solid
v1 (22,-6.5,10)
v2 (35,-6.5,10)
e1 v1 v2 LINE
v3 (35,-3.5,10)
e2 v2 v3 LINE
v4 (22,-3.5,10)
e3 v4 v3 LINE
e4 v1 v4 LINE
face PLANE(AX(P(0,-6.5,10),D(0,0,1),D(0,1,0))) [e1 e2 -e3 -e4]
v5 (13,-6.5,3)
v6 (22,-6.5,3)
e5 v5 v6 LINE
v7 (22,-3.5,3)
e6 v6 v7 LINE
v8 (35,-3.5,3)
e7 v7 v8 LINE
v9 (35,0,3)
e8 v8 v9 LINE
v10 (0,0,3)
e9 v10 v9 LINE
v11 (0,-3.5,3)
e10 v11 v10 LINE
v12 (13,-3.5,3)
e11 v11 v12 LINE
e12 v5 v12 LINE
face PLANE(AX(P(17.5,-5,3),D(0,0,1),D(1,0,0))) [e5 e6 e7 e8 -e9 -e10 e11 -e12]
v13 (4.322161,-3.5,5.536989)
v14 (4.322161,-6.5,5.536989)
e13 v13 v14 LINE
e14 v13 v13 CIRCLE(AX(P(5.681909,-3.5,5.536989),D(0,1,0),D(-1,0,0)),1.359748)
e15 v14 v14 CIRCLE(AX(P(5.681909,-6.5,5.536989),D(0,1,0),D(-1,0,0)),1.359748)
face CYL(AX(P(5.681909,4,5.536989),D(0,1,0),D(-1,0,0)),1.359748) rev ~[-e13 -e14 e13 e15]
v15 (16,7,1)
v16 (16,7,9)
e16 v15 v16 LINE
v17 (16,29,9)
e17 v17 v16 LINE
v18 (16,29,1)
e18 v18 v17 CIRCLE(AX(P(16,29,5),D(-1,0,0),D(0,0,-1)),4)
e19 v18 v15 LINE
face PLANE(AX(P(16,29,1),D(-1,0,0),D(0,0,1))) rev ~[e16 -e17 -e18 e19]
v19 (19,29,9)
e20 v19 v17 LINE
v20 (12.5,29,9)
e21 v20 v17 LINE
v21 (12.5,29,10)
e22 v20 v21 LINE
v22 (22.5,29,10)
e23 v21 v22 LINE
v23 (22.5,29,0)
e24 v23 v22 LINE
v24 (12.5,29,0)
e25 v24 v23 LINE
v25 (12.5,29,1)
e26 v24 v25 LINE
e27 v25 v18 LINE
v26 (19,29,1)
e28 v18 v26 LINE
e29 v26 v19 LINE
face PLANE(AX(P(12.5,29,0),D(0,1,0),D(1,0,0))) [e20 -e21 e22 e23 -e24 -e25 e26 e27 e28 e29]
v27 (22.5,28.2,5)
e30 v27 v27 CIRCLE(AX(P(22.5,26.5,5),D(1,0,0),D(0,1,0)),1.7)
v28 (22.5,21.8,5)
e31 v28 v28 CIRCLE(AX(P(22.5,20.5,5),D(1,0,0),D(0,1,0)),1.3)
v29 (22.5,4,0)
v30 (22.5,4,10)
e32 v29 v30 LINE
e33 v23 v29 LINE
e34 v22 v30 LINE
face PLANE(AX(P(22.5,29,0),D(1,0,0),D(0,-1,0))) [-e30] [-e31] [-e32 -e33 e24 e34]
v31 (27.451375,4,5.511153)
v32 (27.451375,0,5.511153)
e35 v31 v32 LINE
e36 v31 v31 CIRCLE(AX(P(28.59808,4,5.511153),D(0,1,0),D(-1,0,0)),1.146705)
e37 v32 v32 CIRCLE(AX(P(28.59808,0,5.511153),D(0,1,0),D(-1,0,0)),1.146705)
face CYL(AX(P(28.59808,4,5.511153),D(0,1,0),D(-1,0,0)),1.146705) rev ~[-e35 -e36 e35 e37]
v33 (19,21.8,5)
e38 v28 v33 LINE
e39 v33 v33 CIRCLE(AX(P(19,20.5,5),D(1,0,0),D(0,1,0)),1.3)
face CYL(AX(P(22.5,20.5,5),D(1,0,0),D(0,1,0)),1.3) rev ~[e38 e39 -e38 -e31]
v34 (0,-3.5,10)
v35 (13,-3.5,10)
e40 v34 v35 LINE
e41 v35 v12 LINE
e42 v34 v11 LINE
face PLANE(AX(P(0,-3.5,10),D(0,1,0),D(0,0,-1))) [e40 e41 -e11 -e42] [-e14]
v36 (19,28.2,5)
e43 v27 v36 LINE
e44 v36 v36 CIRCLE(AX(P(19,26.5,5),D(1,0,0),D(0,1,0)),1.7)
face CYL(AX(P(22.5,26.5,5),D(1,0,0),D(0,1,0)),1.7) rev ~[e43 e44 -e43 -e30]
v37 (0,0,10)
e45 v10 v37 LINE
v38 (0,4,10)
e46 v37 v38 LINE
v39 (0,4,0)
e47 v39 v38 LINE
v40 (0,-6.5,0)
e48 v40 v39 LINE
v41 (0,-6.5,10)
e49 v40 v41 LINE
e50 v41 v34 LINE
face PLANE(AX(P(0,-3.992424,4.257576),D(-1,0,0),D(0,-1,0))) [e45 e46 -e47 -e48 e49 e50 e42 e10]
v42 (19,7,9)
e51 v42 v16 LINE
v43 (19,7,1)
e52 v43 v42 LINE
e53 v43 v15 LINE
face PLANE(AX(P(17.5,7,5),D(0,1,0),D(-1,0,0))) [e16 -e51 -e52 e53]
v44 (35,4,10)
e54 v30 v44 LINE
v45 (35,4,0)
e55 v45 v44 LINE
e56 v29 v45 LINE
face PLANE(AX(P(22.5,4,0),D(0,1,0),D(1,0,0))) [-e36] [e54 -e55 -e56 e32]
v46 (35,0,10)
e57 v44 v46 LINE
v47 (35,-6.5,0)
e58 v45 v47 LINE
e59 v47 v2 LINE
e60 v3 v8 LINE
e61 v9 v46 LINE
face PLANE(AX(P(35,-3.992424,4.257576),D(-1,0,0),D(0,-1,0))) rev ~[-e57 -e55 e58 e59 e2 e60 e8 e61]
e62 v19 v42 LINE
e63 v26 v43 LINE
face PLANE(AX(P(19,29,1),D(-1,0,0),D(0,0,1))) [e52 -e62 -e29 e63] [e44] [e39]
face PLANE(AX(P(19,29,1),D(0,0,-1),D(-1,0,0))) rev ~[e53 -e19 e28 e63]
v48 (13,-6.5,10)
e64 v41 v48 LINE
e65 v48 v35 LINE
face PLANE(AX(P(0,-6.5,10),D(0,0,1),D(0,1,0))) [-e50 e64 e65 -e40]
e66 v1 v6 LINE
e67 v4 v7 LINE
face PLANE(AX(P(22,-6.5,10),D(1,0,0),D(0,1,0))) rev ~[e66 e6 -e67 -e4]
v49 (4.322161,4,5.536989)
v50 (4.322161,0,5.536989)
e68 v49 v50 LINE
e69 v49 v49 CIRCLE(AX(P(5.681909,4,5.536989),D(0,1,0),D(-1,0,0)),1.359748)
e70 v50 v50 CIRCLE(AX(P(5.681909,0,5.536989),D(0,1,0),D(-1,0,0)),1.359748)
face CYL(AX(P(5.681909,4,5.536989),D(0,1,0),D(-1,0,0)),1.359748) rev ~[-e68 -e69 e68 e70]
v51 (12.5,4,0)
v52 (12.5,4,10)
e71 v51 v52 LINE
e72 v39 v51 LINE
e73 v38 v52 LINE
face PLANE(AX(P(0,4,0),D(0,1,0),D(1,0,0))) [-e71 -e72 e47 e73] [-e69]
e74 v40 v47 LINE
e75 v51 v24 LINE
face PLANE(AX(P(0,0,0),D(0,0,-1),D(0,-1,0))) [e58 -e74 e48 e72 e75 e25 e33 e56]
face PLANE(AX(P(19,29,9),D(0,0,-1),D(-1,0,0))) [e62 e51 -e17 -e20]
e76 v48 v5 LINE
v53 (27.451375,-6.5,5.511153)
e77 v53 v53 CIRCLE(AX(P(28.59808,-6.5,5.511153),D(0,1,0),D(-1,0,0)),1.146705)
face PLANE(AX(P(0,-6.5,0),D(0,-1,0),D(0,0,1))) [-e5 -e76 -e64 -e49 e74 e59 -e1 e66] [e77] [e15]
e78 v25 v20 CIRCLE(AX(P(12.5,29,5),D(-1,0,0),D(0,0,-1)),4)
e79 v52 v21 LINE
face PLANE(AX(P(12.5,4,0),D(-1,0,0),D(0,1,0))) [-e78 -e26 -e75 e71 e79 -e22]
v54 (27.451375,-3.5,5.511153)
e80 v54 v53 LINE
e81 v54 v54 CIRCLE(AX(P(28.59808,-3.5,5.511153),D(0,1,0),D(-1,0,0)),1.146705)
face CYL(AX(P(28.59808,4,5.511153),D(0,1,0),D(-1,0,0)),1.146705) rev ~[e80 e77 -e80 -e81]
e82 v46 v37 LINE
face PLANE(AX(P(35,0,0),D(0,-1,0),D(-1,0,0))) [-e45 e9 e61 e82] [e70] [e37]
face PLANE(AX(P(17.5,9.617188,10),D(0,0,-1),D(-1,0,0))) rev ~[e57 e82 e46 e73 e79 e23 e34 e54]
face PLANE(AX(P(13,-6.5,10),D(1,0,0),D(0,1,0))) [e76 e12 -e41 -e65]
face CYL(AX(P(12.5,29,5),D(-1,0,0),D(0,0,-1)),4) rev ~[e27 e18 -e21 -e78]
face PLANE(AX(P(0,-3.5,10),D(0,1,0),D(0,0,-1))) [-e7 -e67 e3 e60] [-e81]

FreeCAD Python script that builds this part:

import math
import FreeCAD as App
import Part
import Sketcher
from FreeCAD import Vector
Q = App.Units.Quantity


def add_polygon(sketch, points):
    """Adds a closed chain of lines whose ends are joined by coincident constraints."""
    first, n = sketch.GeometryCount, len(points)
    for a, b in zip(points, points[1:] + points[:1]):
        sketch.addGeometry(Part.LineSegment(App.Vector(*a, 0), App.Vector(*b, 0)), False)
    for i in range(n):
        sketch.addConstraint(Sketcher.Constraint("Coincident", first + i, 2, first + (i + 1) % n, 1))

doc = App.newDocument("Part")
body = doc.addObject("PartDesign::Body", "Body")

# Sketch on XY plane
sketch1 = body.newObject("Sketcher::SketchObject", "Sketch")
sketch1.AttachmentSupport = (doc.getObject("XY_Plane"), [""])
sketch1.MapMode = "FlatFace"
add_polygon(sketch1, [(22.5, 29), (12.5, 29), (12.5, 4), (0, 4), (0, 0), (35, 0), (35, 4), (22.5, 4)])  # lines 0-7
sketch1.addConstraint([
    Sketcher.Constraint("Horizontal", 0),
    Sketcher.Constraint("Vertical", 1),
    Sketcher.Constraint("Horizontal", 2),
    Sketcher.Constraint("Vertical", 3),
    Sketcher.Constraint("Horizontal", 4),
    Sketcher.Constraint("Vertical", 5),
    Sketcher.Constraint("Horizontal", 6),
    Sketcher.Constraint("Vertical", 7),
    Sketcher.Constraint("Coincident", 3, 2, -1, 1),
    Sketcher.Constraint("Horizontal", 2, 2, 5, 2),
    Sketcher.Constraint("Equal", 2, 6),
    Sketcher.Constraint("DistanceX", 0, 2, 0, 1, Q("10 mm")),
    Sketcher.Constraint("DistanceX", 4, 1, 4, 2, Q("35 mm")),
    Sketcher.Constraint("DistanceY", 1, 2, 1, 1, Q("25 mm")),
    Sketcher.Constraint("DistanceY", 3, 2, 3, 1, Q("4 mm")),
])
pad1 = body.newObject("PartDesign::Pad", "Pad")
pad1.Profile = sketch1
pad1.Length = 10

# Sketch on XZ plane
sketch2 = body.newObject("Sketcher::SketchObject", "Sketch001")
sketch2.AttachmentSupport = (doc.getObject("XZ_Plane"), [""])
sketch2.MapMode = "FlatFace"
sketch2.AttachmentOffset = App.Placement(Vector(0, 0, -29), App.Rotation())
add_polygon(sketch2, [(19, 9), (19, 1), (16, 1), (16, 9)])  # lines 0-3
sketch2.addConstraint([
    Sketcher.Constraint("Vertical", 0),
    Sketcher.Constraint("Horizontal", 1),
    Sketcher.Constraint("Vertical", 2),
    Sketcher.Constraint("Horizontal", 3),
    Sketcher.Constraint("DistanceX", 1, 2, 1, 1, Q("3 mm")),
    Sketcher.Constraint("DistanceY", 0, 2, 0, 1, Q("8 mm")),
    Sketcher.Constraint("DistanceX", -1, 1, 0, 2, Q("19 mm")),
    Sketcher.Constraint("DistanceY", -1, 1, 0, 2, Q("1 mm")),
])
pocket1 = body.newObject("PartDesign::Pocket", "Pocket")
pocket1.Profile = sketch2
pocket1.Length = 22
pocket1.Reversed = True

# Sketch on YZ plane
sketch3 = body.newObject("Sketcher::SketchObject", "Sketch002")
sketch3.AttachmentSupport = (doc.getObject("YZ_Plane"), [""])
sketch3.MapMode = "FlatFace"
sketch3.AttachmentOffset = App.Placement(Vector(0, 0, 12.5), App.Rotation())
sketch3.addGeometry([
    Part.ArcOfCircle(Part.Circle(Vector(29, 5, 0), Vector(0, 0, 1), 4), math.radians(90), math.radians(270)),
    Part.LineSegment(Vector(29, 9, 0), Vector(29, 1, 0)),
], False)
sketch3.addConstraint([
    Sketcher.Constraint("Coincident", 0, 1, 1, 1),
    Sketcher.Constraint("Coincident", 1, 2, 0, 2),
    Sketcher.Constraint("Vertical", 1),
    Sketcher.Constraint("Radius", 0, Q("4 mm")),
    Sketcher.Constraint("DistanceX", -1, 1, 0, 3, Q("29 mm")),
    Sketcher.Constraint("DistanceY", -1, 1, 0, 3, Q("5 mm")),
    Sketcher.Constraint("DistanceX", -1, 1, 0, 1, Q("29 mm")),
])
pocket2 = body.newObject("PartDesign::Pocket", "Pocket001")
pocket2.Profile = sketch3
pocket2.Length = 5
pocket2.Reversed = True

# Sketch on YZ plane
sketch4 = body.newObject("Sketcher::SketchObject", "Sketch003")
sketch4.AttachmentSupport = (doc.getObject("YZ_Plane"), [""])
sketch4.MapMode = "FlatFace"
sketch4.AttachmentOffset = App.Placement(Vector(0, 0, 22.5), App.Rotation())
sketch4.addGeometry(Part.Circle(Vector(26.5, 5, 0), Vector(0, 0, 1), 1.7), False)
sketch4.addConstraint([
    Sketcher.Constraint("Diameter", 0, Q("3.4 mm")),
    Sketcher.Constraint("DistanceY", -1, 1, 0, 3, Q("5 mm")),
    Sketcher.Constraint("DistanceX", -1, 1, 0, 3, Q("26.5 mm")),
])
pocket3 = body.newObject("PartDesign::Pocket", "Pocket002")
pocket3.Profile = sketch4
pocket3.Length = 5

# Sketch on YZ plane
sketch5 = body.newObject("Sketcher::SketchObject", "Sketch004")
sketch5.AttachmentSupport = (doc.getObject("YZ_Plane"), [""])
sketch5.MapMode = "FlatFace"
add_polygon(sketch5, [(0, 0), (-6.5, 0), (-6.5, 10), (-3.5, 10), (-3.5, 3), (0, 3)])  # lines 0-5
sketch5.addConstraint([
    Sketcher.Constraint("Horizontal", 0),
    Sketcher.Constraint("Vertical", 1),
    Sketcher.Constraint("Horizontal", 2),
    Sketcher.Constraint("Vertical", 3),
    Sketcher.Constraint("Horizontal", 4),
    Sketcher.Constraint("Vertical", 5),
    Sketcher.Constraint("Coincident", 5, 2, -1, 1),
    Sketcher.Constraint("Equal", 2, 5),
    Sketcher.Constraint("DistanceX", 2, 1, 2, 2, Q("3 mm")),
    Sketcher.Constraint("DistanceY", 1, 1, 1, 2, Q("10 mm")),
    Sketcher.Constraint("DistanceX", 0, 2, 0, 1, Q("6.5 mm")),
])
pad2 = body.newObject("PartDesign::Pad", "Pad001")
pad2.Profile = sketch5
pad2.Length = 35

# Sketch on XY plane
sketch6 = body.newObject("Sketcher::SketchObject", "Sketch005")
sketch6.AttachmentSupport = (doc.getObject("XY_Plane"), [""])
sketch6.MapMode = "FlatFace"
sketch6.AttachmentOffset = App.Placement(Vector(0, 0, 10), App.Rotation())
add_polygon(sketch6, [(13, -3.5), (13, -6.5), (22, -6.5), (22, -3.5)])  # lines 0-3
sketch6.addConstraint([
    Sketcher.Constraint("Vertical", 0),
    Sketcher.Constraint("Horizontal", 1),
    Sketcher.Constraint("Vertical", 2),
    Sketcher.Constraint("Horizontal", 3),
    Sketcher.Constraint("DistanceX", 1, 1, 1, 2, Q("9 mm")),
    Sketcher.Constraint("DistanceY", 0, 2, 0, 1, Q("3 mm")),
    Sketcher.Constraint("DistanceX", -1, 1, 0, 2, Q("13 mm")),
    Sketcher.Constraint("DistanceY", 0, 2, -1, 1, Q("6.5 mm")),
])
pocket4 = body.newObject("PartDesign::Pocket", "Pocket003")
pocket4.Profile = sketch6
pocket4.Length = 7

# Sketch on XZ plane
sketch7 = body.newObject("Sketcher::SketchObject", "Sketch006")
sketch7.AttachmentSupport = (doc.getObject("XZ_Plane"), [""])
sketch7.MapMode = "FlatFace"
sketch7.AttachmentOffset = App.Placement(Vector(0, 0, -4), App.Rotation())
sketch7.addGeometry([
    Part.Circle(Vector(28.59808, 5.511153, 0), Vector(0, 0, 1), 1.146705),
    Part.Circle(Vector(5.681909, 5.536989, 0), Vector(0, 0, 1), 1.359748),
], False)
sketch7.addConstraint([
    Sketcher.Constraint("Diameter", 0, Q("2.29341 mm")),
    Sketcher.Constraint("Diameter", 1, Q("2.719496 mm")),
    Sketcher.Constraint("DistanceX", -1, 1, 0, 3, Q("28.59808 mm")),
    Sketcher.Constraint("DistanceX", -1, 1, 1, 3, Q("5.681909 mm")),
    Sketcher.Constraint("DistanceY", -1, 1, 1, 3, Q("5.536989 mm")),
    Sketcher.Constraint("DistanceY", -1, 1, 0, 3, Q("5.511153 mm")),
])
pocket5 = body.newObject("PartDesign::Pocket", "Pocket004")
pocket5.Profile = sketch7
pocket5.Type = "ThroughAll"
pocket5.Reversed = True

# Sketch on YZ plane
sketch8 = body.newObject("Sketcher::SketchObject", "Sketch007")
sketch8.AttachmentSupport = (doc.getObject("YZ_Plane"), [""])
sketch8.MapMode = "FlatFace"
sketch8.AttachmentOffset = App.Placement(Vector(0, 0, 22.5), App.Rotation())
sketch8.addGeometry(Part.Circle(Vector(20.5, 5, 0), Vector(0, 0, 1), 1.3), False)
sketch8.addConstraint([
    Sketcher.Constraint("Diameter", 0, Q("2.6 mm")),
    Sketcher.Constraint("DistanceY", -1, 1, 0, 3, Q("5 mm")),
    Sketcher.Constraint("DistanceX", -1, 1, 0, 3, Q("20.5 mm")),
])
pocket6 = body.newObject("PartDesign::Pocket", "Pocket005")
pocket6.Profile = sketch8
pocket6.Length = 5

doc.recompute()
